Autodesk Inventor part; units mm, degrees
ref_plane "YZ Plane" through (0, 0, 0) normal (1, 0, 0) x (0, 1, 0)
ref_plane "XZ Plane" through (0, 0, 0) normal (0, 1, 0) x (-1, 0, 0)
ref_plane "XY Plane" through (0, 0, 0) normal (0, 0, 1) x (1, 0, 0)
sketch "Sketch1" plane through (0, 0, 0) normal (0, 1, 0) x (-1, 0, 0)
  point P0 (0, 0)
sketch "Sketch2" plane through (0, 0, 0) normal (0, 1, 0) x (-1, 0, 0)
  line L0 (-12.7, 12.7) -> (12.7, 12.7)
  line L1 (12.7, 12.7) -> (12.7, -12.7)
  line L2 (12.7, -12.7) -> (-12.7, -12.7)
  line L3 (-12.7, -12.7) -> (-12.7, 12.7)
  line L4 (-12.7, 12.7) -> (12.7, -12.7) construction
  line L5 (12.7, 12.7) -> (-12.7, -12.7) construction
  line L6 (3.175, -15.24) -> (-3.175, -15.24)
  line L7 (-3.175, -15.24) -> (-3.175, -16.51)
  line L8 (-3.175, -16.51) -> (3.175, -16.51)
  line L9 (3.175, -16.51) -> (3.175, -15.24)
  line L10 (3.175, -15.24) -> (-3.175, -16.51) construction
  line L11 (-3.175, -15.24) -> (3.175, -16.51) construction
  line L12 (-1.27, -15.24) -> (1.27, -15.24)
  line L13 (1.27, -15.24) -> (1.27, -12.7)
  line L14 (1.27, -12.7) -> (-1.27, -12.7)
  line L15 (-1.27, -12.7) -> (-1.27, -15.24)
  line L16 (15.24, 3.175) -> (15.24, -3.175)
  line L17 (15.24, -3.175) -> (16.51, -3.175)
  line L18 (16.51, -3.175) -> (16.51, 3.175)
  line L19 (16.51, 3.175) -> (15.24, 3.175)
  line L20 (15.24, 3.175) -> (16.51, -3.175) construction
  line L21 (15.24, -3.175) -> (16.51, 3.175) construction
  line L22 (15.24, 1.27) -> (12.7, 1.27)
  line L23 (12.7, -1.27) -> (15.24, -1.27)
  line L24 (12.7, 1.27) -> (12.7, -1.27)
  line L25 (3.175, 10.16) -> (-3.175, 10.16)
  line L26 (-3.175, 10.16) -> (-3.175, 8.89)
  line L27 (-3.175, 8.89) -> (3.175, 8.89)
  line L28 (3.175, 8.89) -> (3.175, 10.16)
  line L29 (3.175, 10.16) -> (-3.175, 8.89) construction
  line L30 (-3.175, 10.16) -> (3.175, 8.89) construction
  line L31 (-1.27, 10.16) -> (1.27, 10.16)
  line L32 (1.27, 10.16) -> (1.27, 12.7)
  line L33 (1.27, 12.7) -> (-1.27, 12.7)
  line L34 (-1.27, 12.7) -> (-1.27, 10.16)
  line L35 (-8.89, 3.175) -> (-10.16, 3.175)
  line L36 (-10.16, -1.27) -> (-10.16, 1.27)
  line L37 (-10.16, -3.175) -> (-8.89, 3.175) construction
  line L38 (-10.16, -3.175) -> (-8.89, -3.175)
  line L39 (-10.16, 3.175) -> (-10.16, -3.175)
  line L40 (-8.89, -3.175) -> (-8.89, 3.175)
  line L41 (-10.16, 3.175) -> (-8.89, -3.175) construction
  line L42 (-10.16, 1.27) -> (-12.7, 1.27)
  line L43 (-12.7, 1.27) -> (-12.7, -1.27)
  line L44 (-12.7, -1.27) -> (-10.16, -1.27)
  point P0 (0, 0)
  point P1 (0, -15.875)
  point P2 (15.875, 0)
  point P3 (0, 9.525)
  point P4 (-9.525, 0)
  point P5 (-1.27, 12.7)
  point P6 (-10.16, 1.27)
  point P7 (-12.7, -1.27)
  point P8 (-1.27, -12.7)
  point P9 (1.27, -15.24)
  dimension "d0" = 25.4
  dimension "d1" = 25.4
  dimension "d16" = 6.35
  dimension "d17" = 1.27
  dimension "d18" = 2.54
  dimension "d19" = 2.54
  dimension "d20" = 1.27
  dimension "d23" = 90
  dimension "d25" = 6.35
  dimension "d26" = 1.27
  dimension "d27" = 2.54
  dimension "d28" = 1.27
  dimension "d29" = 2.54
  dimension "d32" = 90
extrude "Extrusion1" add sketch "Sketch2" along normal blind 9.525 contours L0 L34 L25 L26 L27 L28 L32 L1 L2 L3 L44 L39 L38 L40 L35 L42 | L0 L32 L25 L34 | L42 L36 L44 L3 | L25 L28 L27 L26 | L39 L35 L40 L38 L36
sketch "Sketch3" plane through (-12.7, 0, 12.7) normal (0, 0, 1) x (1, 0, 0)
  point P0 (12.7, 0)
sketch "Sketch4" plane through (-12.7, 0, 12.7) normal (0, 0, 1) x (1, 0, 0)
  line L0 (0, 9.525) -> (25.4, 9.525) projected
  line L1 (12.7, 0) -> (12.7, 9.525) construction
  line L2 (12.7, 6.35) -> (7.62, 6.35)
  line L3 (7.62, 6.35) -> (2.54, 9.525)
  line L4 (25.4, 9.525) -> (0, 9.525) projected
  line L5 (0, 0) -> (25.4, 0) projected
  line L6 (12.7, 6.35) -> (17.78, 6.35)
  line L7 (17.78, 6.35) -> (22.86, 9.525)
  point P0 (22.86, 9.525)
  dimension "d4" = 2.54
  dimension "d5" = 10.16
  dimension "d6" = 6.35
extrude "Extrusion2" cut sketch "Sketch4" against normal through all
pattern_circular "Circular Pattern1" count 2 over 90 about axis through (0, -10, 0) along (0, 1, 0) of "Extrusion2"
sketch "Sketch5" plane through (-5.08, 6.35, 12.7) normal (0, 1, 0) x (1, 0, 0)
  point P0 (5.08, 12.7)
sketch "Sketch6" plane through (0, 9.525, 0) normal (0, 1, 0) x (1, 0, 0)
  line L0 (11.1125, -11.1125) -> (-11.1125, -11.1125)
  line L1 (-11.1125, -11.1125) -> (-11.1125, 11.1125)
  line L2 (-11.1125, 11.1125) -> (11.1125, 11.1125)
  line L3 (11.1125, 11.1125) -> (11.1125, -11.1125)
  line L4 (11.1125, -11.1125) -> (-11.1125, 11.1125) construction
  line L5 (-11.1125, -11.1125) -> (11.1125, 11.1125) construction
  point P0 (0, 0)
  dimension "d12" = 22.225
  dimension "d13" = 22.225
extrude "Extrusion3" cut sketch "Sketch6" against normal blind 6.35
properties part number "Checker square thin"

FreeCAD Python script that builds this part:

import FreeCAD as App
import Part
import Sketcher

V = App.Vector
Q = App.Units.Quantity


def add_polygon(sketch, points):
    """Adds a closed chain of lines whose ends are joined by coincident constraints."""
    first, n = sketch.GeometryCount, len(points)
    for a, b in zip(points, points[1:] + points[:1]):
        sketch.addGeometry(Part.LineSegment(App.Vector(*a, 0), App.Vector(*b, 0)), False)
    for i in range(n):
        sketch.addConstraint(Sketcher.Constraint("Coincident", first + i, 2, first + (i + 1) % n, 1))

doc = App.newDocument("Part")
body = doc.addObject("PartDesign::Body", "Body")

# Sketch on XZ plane
sketch1 = body.newObject("Sketcher::SketchObject", "Sketch")
sketch1.AttachmentSupport = (doc.getObject("XZ_Plane"), [""])
sketch1.MapMode = "FlatFace"
add_polygon(sketch1, [(13, 13), (13, -13), (-13, -13), (-13, 13)])  # lines 0-3
sketch1.addConstraint([
    Sketcher.Constraint("Vertical", 0),
    Sketcher.Constraint("Horizontal", 1),
    Sketcher.Constraint("Vertical", 2),
    Sketcher.Constraint("Horizontal", 3),
    Sketcher.Constraint("Symmetric", 0, 2, 2, 2, -1, 1),
    Sketcher.Constraint("Equal", 3, 0),
    Sketcher.Constraint("DistanceX", 1, 2, 1, 1, Q("1 in")),
])
pad1 = body.newObject("PartDesign::Pad", "Pad")
pad1.Profile = sketch1
pad1.Length = Q("0.375 in")
pad1.Reversed = True

# Sketch on XY plane
sketch2 = body.newObject("Sketcher::SketchObject", "Sketch001")
sketch2.AttachmentSupport = (doc.getObject("XY_Plane"), [""])
sketch2.MapMode = "FlatFace"
sketch2.AttachmentOffset = App.Placement(V(0, 0, 0.5 * 25.4), App.Rotation())
add_polygon(sketch2, [(10, 10), (-10, 10), (-5, 6), (5, 6)])  # lines 0-3
sketch2.addConstraint([
    Sketcher.Constraint("Horizontal", 0),
    Sketcher.Constraint("Horizontal", 2),
    Sketcher.Constraint("Equal", 1, 3),
    Sketcher.Constraint("DistanceX", 2, 1, 2, 2, Q("0.4 in")),
    Sketcher.Constraint("DistanceX", 0, 2, -1, 1, Q("0.4 in")),
    Sketcher.Constraint("DistanceX", -1, 1, 3, 2, Q("0.4 in")),
    Sketcher.Constraint("DistanceY", -1, 1, 1, 2, Q("0.25 in")),
    Sketcher.Constraint("DistanceY", -1, 1, 0, 2, Q("0.375 in")),
])
pocket1 = body.newObject("PartDesign::Pocket", "Pocket")
pocket1.Profile = sketch2
pocket1.Type = "ThroughAll"
doc.recompute()

polarpattern = body.newObject("PartDesign::PolarPattern", "PolarPattern")
polarpattern.Originals = [pocket1]
polarpattern.Axis = (doc.getObject("Y_Axis"), [""])
polarpattern.Angle = 90
polarpattern.Occurrences = 2
body.Tip = polarpattern

# Sketch on XZ plane
sketch3 = body.newObject("Sketcher::SketchObject", "Sketch002")
sketch3.AttachmentSupport = (doc.getObject("XZ_Plane"), [""])
sketch3.MapMode = "FlatFace"
sketch3.AttachmentOffset = App.Placement(V(0, 0, -0.375 * 25.4), App.Rotation())
add_polygon(sketch3, [(-11, 11), (11, 11), (11, -11), (-11, -11)])  # lines 0-3
sketch3.addConstraint([
    Sketcher.Constraint("Horizontal", 0),
    Sketcher.Constraint("Vertical", 1),
    Sketcher.Constraint("Horizontal", 2),
    Sketcher.Constraint("Vertical", 3),
    Sketcher.Constraint("Symmetric", 0, 2, 2, 2, -1, 1),
    Sketcher.Constraint("Equal", 2, 1),
    Sketcher.Constraint("DistanceX", 0, 1, 0, 2, Q("0.875 in")),
])
pocket2 = body.newObject("PartDesign::Pocket", "Pocket001")
pocket2.Profile = sketch3
pocket2.Length = Q("0.25 in")
pocket2.Reversed = True

doc.recompute()
